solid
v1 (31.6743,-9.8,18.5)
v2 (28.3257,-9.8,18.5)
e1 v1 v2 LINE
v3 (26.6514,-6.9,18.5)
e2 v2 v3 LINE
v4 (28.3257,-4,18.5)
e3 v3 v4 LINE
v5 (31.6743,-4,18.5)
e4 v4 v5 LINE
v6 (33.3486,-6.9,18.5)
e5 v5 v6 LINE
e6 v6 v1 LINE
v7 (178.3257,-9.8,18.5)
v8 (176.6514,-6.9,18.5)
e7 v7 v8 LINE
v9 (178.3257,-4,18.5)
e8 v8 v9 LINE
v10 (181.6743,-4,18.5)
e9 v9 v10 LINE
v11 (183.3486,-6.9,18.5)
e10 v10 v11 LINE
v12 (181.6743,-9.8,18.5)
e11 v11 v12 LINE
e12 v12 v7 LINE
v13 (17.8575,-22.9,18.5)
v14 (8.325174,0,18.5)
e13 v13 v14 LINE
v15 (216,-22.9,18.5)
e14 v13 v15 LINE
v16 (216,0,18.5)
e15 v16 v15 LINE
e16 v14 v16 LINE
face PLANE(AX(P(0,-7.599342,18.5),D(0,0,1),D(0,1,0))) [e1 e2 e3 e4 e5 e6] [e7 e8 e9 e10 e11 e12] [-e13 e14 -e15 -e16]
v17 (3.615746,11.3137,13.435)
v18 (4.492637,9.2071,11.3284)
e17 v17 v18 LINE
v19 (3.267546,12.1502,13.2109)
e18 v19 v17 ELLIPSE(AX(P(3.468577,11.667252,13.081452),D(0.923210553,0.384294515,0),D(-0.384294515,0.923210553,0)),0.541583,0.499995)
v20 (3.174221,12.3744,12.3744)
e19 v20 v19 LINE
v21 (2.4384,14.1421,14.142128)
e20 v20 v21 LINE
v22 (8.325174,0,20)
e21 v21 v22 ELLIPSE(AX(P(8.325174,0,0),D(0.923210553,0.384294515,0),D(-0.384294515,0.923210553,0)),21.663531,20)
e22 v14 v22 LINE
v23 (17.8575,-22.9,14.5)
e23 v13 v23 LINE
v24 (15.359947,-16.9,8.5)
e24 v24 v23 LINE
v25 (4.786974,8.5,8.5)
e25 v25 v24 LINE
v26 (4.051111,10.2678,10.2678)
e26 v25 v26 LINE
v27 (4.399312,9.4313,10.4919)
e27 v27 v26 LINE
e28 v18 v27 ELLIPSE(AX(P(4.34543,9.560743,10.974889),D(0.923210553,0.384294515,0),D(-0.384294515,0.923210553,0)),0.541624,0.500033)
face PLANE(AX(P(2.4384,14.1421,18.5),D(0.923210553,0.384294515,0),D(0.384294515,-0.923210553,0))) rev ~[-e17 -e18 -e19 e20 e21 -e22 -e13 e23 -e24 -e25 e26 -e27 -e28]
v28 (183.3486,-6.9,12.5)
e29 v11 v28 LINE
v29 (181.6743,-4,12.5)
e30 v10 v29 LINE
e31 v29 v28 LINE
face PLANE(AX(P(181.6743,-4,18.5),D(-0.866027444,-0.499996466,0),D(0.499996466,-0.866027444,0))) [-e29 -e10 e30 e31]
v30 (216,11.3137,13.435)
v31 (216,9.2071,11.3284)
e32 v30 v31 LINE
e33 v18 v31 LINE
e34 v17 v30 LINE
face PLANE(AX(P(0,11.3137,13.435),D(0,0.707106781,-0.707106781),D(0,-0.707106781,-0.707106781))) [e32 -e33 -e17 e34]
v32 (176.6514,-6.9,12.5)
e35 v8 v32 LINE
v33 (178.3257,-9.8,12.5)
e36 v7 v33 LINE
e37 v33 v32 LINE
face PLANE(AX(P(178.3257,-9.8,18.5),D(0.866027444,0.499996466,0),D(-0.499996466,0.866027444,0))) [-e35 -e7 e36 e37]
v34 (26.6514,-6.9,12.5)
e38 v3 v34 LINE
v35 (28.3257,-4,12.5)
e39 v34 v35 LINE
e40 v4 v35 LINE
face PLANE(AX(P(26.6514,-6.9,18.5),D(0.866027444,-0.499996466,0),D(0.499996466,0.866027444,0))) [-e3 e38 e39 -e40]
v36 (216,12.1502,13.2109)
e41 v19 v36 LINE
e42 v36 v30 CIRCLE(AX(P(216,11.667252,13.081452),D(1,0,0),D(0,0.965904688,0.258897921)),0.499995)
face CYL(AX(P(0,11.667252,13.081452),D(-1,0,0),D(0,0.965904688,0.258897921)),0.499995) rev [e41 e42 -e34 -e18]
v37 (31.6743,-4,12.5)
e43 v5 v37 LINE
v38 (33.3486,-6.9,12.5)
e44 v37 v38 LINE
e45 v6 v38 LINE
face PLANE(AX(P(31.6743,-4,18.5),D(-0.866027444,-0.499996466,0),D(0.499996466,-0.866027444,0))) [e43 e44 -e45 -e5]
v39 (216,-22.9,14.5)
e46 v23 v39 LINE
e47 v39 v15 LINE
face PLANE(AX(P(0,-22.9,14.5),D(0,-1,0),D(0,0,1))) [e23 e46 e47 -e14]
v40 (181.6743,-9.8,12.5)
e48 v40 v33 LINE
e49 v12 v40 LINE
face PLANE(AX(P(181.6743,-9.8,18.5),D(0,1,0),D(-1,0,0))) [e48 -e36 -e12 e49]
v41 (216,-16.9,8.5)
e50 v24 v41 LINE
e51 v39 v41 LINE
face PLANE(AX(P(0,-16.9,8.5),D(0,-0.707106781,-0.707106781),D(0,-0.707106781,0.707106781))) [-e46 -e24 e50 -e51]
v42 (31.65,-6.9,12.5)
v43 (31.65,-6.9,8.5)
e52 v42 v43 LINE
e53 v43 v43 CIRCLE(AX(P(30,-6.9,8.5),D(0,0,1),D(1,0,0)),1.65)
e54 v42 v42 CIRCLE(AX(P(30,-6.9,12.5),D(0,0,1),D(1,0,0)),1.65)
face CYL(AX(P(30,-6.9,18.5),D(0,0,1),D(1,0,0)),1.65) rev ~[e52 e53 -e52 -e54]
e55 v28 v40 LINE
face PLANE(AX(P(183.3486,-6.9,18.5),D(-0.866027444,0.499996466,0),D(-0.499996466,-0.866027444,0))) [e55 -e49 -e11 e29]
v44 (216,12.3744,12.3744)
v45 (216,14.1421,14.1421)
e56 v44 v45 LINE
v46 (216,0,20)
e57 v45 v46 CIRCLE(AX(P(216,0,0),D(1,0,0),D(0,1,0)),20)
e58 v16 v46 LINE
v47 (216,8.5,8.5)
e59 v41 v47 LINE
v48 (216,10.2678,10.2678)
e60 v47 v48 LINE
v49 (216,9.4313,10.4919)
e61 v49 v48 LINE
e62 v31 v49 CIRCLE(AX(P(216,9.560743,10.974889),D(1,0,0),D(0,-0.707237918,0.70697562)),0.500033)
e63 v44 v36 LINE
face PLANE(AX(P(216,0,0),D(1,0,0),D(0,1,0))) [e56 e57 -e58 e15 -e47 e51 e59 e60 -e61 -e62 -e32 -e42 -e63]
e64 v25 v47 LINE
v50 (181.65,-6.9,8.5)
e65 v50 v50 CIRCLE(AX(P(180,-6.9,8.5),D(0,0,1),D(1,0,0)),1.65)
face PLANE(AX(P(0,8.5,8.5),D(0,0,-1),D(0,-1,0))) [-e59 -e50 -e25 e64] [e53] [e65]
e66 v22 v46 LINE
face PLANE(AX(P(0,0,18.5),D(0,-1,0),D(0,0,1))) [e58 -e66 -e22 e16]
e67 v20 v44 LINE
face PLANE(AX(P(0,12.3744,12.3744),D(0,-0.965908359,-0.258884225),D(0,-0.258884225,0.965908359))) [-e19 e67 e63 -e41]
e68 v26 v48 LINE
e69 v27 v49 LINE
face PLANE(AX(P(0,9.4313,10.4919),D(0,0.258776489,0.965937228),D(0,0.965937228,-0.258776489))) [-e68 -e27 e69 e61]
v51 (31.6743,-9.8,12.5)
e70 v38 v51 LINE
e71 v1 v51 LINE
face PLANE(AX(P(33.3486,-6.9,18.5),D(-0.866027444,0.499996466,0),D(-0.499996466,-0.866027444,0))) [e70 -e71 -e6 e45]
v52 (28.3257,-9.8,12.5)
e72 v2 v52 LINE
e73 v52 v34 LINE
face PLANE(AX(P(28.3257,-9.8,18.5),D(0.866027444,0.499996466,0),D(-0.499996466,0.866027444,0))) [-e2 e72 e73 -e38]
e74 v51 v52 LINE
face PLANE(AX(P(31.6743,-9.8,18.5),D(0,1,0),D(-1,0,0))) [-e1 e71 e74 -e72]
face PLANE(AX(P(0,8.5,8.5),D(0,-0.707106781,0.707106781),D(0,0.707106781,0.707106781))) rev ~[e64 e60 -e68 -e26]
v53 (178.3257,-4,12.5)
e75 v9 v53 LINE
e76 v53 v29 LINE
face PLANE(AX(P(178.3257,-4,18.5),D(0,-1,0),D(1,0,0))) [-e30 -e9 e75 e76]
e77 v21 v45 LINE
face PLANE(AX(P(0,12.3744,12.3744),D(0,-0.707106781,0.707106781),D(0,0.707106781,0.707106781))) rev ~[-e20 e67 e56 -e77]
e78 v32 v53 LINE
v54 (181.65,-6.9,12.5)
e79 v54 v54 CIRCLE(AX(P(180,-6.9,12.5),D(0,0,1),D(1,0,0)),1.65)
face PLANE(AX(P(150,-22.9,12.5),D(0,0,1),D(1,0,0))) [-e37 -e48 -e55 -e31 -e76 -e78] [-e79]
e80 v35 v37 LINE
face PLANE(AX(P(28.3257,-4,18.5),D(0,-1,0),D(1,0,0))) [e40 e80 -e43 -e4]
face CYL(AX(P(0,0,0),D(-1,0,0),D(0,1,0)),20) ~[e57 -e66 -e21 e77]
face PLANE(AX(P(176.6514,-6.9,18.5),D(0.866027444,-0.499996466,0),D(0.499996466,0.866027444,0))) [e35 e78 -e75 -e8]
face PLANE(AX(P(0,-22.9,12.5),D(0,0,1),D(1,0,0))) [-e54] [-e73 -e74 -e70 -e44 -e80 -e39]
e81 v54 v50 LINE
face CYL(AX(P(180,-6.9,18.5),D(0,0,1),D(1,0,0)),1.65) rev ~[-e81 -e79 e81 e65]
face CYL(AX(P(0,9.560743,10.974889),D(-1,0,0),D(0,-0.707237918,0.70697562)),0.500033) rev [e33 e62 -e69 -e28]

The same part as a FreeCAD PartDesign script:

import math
import FreeCAD as App
import Part
import Sketcher

V = App.Vector
Q = App.Units.Quantity

doc = App.newDocument("Part")
body = doc.addObject("PartDesign::Body", "Body")

# Sketch on YZ plane
sketch1 = body.newObject("Sketcher::SketchObject", "Sketch")
sketch1.AttachmentSupport = (doc.getObject("YZ_Plane"), [""])
sketch1.MapMode = "FlatFace"
sketch1.addGeometry([
    Part.LineSegment(V(12.37, 12.37, 0), V(14.14, 14.14, 0)),  # 0
    Part.ArcOfCircle(Part.Circle(V(0, 0, 0), V(0, 0, 1), 20), math.radians(45), math.radians(90)),  # 1
    Part.LineSegment(V(0, 20, 0), V(0, 18.5, 0)),  # 2
    Part.LineSegment(V(0, 18.5, 0), V(-22.9, 18.5, 0)),  # 3
    Part.LineSegment(V(-22.9, 18.5, 0), V(-22.9, 14.5, 0)),  # 4
    Part.LineSegment(V(-22.9, 14.5, 0), V(-16.9, 8.5, 0)),  # 5
    Part.LineSegment(V(-16.9, 8.5, 0), V(8.5, 8.5, 0)),  # 6
    Part.LineSegment(V(8.5, 8.5, 0), V(10.27, 10.27, 0)),  # 7
    Part.LineSegment(V(10.27, 10.27, 0), V(9.43, 10.49, 0)),  # 8
    Part.ArcOfCircle(Part.Circle(V(9.56, 10.97, 0), V(0, 0, 1), 0.5), math.radians(135), math.radians(255)),  # 9
    Part.LineSegment(V(9.21, 11.33, 0), V(11.31, 13.44, 0)),  # 10
    Part.ArcOfCircle(Part.Circle(V(11.67, 13.08, 0), V(0, 0, 1), 0.5), math.radians(15), math.radians(135)),  # 11
    Part.LineSegment(V(12.15, 13.21, 0), V(12.37, 12.37, 0)),  # 12
], False)
sketch1.addConstraint([
    Sketcher.Constraint("Coincident", 0, 2, 1, 1),
    Sketcher.Constraint("Coincident", 1, 2, 2, 1),
    Sketcher.Constraint("Coincident", 2, 2, 3, 1),
    Sketcher.Constraint("Coincident", 3, 2, 4, 1),
    Sketcher.Constraint("Coincident", 4, 2, 5, 1),
    Sketcher.Constraint("Coincident", 5, 2, 6, 1),
    Sketcher.Constraint("Coincident", 6, 2, 7, 1),
    Sketcher.Constraint("Coincident", 7, 2, 8, 1),
    Sketcher.Constraint("Tangent", 8, 2, 9, 2),
    Sketcher.Constraint("Tangent", 9, 1, 10, 1),
    Sketcher.Constraint("Tangent", 10, 2, 11, 2),
    Sketcher.Constraint("Tangent", 11, 1, 12, 1),
    Sketcher.Constraint("Coincident", 12, 2, 0, 1),
    Sketcher.Constraint("Vertical", 2),
    Sketcher.Constraint("Horizontal", 3),
    Sketcher.Constraint("Vertical", 4),
    Sketcher.Constraint("Horizontal", 6),
    Sketcher.Constraint("Coincident", 1, 3, -1, 1),
    Sketcher.Constraint("Equal", 9, 11),
    Sketcher.Constraint("PointOnObject", 1, 2, -2),
    Sketcher.Constraint("Perpendicular", 0, 5),
    Sketcher.Constraint("Perpendicular", 5, 7),
    Sketcher.Constraint("Parallel", 7, 10),
    Sketcher.Constraint("Equal", 0, 7),
    Sketcher.Constraint("Equal", 8, 12),
    Sketcher.Constraint("Radius", 1, Q("20 mm")),
    Sketcher.Constraint("Radius", 9, Q("0.5 mm")),
    Sketcher.Constraint("DistanceY", 4, 2, 4, 1, Q("4 mm")),
    Sketcher.Constraint("Angle", 0, Q("45 deg")),
    Sketcher.Constraint("DistanceX", 6, 1, 6, 2, Q("25.4 mm")),
    Sketcher.Constraint("DistanceY", 2, 2, 2, 1, Q("1.5 mm")),
    Sketcher.Constraint("DistanceY", 5, 2, 3, 2, Q("10 mm")),
    Sketcher.Constraint("Distance", 0, Q("2.5 mm")),
    Sketcher.Constraint("DistanceX", 3, 2, 3, 1, Q("22.9 mm")),
    Sketcher.Constraint("DistanceY", 9, 3, 10, 2, Q("2.46 mm")),
    Sketcher.Constraint("Distance", 8, Q("0.866 mm")),
    Sketcher.Constraint("DistanceY", -1, 1, 9, 3, Q("10.975 mm")),
])
pad1 = body.newObject("PartDesign::Pad", "Pad")
pad1.Profile = sketch1
pad1.Length = 216

# Sketch on XY plane
sketch2 = body.newObject("Sketcher::SketchObject", "Sketch001")
sketch2.AttachmentSupport = (doc.getObject("XY_Plane"), [""])
sketch2.MapMode = "FlatFace"
sketch2.AttachmentOffset = App.Placement(V(0, 0, 18.5), App.Rotation())
sketch2.addGeometry([
    Part.LineSegment(V(26.7, -6.9, 0), V(28.3, -9.8, 0)),  # 0
    Part.LineSegment(V(28.3, -9.8, 0), V(31.7, -9.8, 0)),  # 1
    Part.LineSegment(V(31.7, -9.8, 0), V(33.3, -6.9, 0)),  # 2
    Part.LineSegment(V(33.3, -6.9, 0), V(31.7, -4, 0)),  # 3
    Part.LineSegment(V(31.7, -4, 0), V(28.3, -4, 0)),  # 4
    Part.LineSegment(V(28.3, -4, 0), V(26.7, -6.9, 0)),  # 5
], False)
sketch2.addConstraint([
    Sketcher.Constraint("Coincident", 0, 2, 1, 1),
    Sketcher.Constraint("Coincident", 1, 2, 2, 1),
    Sketcher.Constraint("Coincident", 2, 2, 3, 1),
    Sketcher.Constraint("Coincident", 3, 2, 4, 1),
    Sketcher.Constraint("Coincident", 4, 2, 5, 1),
    Sketcher.Constraint("Coincident", 5, 2, 0, 1),
    Sketcher.Constraint("Horizontal", 1),
    Sketcher.Constraint("Horizontal", 4),
    Sketcher.Constraint("Parallel", 0, 3),
    Sketcher.Constraint("Parallel", 2, 5),
    Sketcher.Constraint("Horizontal", 2, 2, 5, 2),
    Sketcher.Constraint("Vertical", 1, 2, 3, 2),
    Sketcher.Constraint("Vertical", 0, 2, 4, 2),
    Sketcher.Constraint("DistanceY", 1, 2, 3, 2, Q("5.8 mm")),
    Sketcher.Constraint("Angle", 0, Q("-60.0002 deg")),
    Sketcher.Constraint("DistanceY", 3, 2, -1, 1, Q("4 mm")),
    Sketcher.Constraint("DistanceX", 1, 1, 1, 2, Q("3.3486 mm")),
    Sketcher.Constraint("DistanceX", -1, 1, 0, 2, Q("28.3257 mm")),
])
pocket1 = body.newObject("PartDesign::Pocket", "Pocket")
pocket1.Profile = sketch2
pocket1.Length = 6

# Sketch on XY plane
sketch3 = body.newObject("Sketcher::SketchObject", "Sketch002")
sketch3.AttachmentSupport = (doc.getObject("XY_Plane"), [""])
sketch3.MapMode = "FlatFace"
sketch3.AttachmentOffset = App.Placement(V(0, 0, 18.5), App.Rotation())
sketch3.addGeometry(Part.Circle(V(30, -6.9, 0), V(0, 0, 1), 1.6), False)
sketch3.addConstraint([
    Sketcher.Constraint("Diameter", 0, Q("3.3 mm")),
    Sketcher.Constraint("DistanceX", -1, 1, 0, 3, Q("30 mm")),
    Sketcher.Constraint("DistanceY", 0, 3, -1, 1, Q("6.9 mm")),
])
pocket2 = body.newObject("PartDesign::Pocket", "Pocket001")
pocket2.Profile = sketch3
pocket2.Type = "ThroughAll"

# Sketch on XY plane
sketch4 = body.newObject("Sketcher::SketchObject", "Sketch003")
sketch4.AttachmentSupport = (doc.getObject("XY_Plane"), [""])
sketch4.MapMode = "FlatFace"
sketch4.AttachmentOffset = App.Placement(V(0, 0, 18.5), App.Rotation())
sketch4.addGeometry([
    Part.LineSegment(V(2.4, 14.1, 0), V(0, 14.1, 0)),
    Part.LineSegment(V(0, 14.1, 0), V(0, -22.9, 0)),
    Part.LineSegment(V(0, -22.9, 0), V(17.9, -22.9, 0)),
    Part.LineSegment(V(17.9, -22.9, 0), V(2.4, 14.1, 0)),
], False)
sketch4.addConstraint([
    Sketcher.Constraint("Coincident", 0, 2, 1, 1),
    Sketcher.Constraint("Coincident", 1, 2, 2, 1),
    Sketcher.Constraint("Coincident", 2, 2, 3, 1),
    Sketcher.Constraint("Coincident", 3, 2, 0, 1),
    Sketcher.Constraint("Horizontal", 0),
    Sketcher.Constraint("Vertical", 1),
    Sketcher.Constraint("Horizontal", 2),
    Sketcher.Constraint("PointOnObject", 0, 2, -2),
    Sketcher.Constraint("Angle", 3, Q("112.6 deg")),
    Sketcher.Constraint("DistanceY", 1, 2, -1, 1, Q("22.9 mm")),
    Sketcher.Constraint("DistanceY", 1, 2, 1, 1, Q("37.042 mm")),
    Sketcher.Constraint("DistanceX", 0, 2, 0, 1, Q("2.4384 mm")),
])
pocket3 = body.newObject("PartDesign::Pocket", "Pocket002")
pocket3.Profile = sketch4
pocket3.Type = "ThroughAll"
pocket3.Midplane = True
doc.recompute()

linearpattern = body.newObject("PartDesign::LinearPattern", "LinearPattern")
linearpattern.Originals = [pocket2, pocket1]
linearpattern.Direction = (doc.getObject("X_Axis"), [""])
linearpattern.Mode = "offset"
linearpattern.Offset = 150
linearpattern.Occurrences = 2
body.Tip = linearpattern

doc.recompute()
